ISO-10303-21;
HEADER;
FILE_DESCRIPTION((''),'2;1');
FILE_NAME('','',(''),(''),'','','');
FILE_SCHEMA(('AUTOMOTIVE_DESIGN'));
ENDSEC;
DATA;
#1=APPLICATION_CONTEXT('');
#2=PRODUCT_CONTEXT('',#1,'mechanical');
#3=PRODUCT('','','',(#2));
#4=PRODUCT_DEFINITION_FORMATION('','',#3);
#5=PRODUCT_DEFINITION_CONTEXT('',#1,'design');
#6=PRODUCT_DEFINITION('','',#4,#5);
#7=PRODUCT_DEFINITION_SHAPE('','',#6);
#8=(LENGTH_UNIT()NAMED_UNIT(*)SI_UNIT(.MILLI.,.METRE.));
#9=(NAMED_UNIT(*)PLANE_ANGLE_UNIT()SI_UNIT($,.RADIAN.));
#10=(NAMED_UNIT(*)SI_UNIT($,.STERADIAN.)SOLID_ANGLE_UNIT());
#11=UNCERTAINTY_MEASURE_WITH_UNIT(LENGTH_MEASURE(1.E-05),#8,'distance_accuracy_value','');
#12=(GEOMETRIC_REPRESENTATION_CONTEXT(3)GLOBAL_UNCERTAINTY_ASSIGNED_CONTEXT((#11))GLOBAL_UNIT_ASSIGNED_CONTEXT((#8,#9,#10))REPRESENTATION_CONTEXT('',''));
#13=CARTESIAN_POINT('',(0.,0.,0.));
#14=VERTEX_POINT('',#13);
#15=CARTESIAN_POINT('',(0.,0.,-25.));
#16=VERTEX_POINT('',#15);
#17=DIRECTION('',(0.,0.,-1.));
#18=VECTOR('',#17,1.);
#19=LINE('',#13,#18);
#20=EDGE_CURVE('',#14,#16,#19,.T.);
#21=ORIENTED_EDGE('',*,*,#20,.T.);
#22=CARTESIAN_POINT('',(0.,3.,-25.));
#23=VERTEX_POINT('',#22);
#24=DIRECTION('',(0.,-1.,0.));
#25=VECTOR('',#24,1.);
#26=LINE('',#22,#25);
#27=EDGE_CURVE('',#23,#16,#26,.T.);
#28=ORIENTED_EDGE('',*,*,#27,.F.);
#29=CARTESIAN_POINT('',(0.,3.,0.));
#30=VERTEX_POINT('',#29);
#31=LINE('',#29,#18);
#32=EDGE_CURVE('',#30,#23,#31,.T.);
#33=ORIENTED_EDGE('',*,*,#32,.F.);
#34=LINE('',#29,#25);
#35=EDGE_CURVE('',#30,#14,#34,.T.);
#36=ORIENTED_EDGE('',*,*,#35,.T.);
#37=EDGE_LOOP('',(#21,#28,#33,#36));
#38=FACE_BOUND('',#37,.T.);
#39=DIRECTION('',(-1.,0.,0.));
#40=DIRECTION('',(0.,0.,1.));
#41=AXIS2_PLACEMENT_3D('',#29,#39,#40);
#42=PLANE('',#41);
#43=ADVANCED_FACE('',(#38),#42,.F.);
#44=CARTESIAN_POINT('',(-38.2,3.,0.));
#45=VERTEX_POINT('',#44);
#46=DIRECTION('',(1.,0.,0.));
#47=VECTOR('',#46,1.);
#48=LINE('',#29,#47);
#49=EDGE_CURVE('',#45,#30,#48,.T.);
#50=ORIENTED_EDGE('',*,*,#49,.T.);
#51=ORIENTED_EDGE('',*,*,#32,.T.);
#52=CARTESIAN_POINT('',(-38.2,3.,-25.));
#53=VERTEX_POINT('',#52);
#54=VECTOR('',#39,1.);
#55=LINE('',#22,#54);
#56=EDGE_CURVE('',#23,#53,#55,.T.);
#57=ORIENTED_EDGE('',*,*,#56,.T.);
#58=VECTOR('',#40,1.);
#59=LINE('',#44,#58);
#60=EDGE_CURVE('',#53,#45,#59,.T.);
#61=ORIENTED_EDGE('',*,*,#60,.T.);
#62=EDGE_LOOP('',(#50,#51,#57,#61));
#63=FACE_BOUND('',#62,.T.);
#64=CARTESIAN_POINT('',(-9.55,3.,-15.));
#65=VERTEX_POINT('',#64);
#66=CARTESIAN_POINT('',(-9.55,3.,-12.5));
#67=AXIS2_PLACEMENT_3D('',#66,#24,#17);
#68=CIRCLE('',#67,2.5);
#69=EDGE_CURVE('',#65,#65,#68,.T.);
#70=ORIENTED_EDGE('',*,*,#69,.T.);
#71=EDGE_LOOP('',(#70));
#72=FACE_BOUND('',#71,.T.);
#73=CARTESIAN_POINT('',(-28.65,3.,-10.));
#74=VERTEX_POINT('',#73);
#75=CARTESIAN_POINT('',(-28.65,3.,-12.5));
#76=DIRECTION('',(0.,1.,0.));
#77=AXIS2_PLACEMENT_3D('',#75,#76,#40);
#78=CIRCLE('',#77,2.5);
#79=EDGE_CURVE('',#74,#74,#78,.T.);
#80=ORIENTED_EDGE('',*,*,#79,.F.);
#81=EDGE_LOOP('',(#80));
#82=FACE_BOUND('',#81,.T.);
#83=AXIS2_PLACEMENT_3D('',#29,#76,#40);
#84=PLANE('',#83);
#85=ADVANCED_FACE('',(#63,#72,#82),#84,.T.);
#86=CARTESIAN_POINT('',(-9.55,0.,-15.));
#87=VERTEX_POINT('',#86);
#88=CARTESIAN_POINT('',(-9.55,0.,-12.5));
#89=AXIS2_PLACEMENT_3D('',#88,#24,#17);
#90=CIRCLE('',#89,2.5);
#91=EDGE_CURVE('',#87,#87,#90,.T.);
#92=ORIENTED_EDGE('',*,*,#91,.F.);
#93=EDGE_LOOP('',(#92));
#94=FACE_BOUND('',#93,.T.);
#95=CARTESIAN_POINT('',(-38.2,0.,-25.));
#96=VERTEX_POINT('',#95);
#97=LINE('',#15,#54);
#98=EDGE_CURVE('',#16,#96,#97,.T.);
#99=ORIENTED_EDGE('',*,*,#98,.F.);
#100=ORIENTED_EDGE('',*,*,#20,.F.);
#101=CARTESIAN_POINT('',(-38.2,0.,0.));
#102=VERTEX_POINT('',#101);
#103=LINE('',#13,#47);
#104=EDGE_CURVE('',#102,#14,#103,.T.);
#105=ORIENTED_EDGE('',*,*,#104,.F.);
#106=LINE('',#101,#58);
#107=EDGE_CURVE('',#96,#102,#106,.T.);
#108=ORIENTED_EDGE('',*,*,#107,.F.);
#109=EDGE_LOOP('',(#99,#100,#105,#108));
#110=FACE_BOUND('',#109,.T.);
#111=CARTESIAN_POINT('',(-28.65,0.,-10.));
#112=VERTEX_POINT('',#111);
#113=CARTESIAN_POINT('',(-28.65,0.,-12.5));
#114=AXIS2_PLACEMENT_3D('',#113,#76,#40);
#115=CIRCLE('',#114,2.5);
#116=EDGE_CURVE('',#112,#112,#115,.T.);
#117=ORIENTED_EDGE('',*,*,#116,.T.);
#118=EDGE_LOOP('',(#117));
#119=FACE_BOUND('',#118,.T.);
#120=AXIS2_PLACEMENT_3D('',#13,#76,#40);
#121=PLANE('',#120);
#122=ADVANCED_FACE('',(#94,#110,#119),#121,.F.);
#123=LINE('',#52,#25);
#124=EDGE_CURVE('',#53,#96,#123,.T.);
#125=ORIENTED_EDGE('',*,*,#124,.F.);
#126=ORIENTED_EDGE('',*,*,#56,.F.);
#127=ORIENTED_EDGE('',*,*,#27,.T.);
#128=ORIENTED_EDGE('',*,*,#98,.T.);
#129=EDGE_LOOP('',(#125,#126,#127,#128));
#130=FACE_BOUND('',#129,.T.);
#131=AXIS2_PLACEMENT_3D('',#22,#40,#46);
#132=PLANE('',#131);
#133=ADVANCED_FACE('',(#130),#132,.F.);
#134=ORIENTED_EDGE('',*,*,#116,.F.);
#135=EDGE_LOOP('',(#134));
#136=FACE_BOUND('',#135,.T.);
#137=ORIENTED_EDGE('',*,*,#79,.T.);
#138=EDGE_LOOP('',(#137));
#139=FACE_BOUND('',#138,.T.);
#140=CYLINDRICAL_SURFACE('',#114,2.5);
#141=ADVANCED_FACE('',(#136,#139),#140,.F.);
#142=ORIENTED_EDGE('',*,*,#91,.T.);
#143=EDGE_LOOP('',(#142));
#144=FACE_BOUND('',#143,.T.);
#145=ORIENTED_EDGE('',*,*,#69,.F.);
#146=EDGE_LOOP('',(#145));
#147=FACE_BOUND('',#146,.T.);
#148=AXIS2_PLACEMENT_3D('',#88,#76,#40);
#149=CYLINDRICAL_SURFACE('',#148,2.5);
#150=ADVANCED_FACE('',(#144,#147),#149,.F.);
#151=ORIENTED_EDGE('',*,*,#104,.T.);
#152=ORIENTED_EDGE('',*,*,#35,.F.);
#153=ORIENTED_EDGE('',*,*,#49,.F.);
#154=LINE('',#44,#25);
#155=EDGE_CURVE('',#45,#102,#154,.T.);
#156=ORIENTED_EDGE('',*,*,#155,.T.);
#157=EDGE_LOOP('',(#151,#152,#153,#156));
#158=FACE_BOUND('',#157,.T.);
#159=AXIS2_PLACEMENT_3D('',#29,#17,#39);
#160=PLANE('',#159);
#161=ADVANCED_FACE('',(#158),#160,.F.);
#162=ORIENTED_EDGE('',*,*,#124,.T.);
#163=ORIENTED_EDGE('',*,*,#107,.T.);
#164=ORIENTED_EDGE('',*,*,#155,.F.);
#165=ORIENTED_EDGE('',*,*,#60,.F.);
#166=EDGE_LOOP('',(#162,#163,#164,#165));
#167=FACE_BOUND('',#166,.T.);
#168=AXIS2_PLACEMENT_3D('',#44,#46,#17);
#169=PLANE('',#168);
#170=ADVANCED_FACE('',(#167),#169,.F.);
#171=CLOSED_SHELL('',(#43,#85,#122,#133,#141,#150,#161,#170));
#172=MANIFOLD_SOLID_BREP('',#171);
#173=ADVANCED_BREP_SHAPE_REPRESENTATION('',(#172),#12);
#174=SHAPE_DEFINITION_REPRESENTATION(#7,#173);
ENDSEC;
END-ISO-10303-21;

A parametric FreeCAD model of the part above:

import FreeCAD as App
import Part
import Sketcher

V = App.Vector
Q = App.Units.Quantity


def add_polygon(sketch, points):
    """Adds a closed chain of lines whose ends are joined by coincident constraints."""
    first, n = sketch.GeometryCount, len(points)
    for a, b in zip(points, points[1:] + points[:1]):
        sketch.addGeometry(Part.LineSegment(App.Vector(*a, 0), App.Vector(*b, 0)), False)
    for i in range(n):
        sketch.addConstraint(Sketcher.Constraint("Coincident", first + i, 2, first + (i + 1) % n, 1))

doc = App.newDocument("Part")
body = doc.addObject("PartDesign::Body", "Body")

# Sketch on XZ plane
sketch1 = doc.addObject("Sketcher::SketchObject", "Sketch")
body.addObject(sketch1)
sketch1.AttachmentSupport = (doc.XZ_Plane, [""])
sketch1.MapMode = "FlatFace"
add_polygon(sketch1, [(-38, -25), (-38, 0), (0, 0), (0, -25)])  # lines 0-3
sketch1.addConstraint(Sketcher.Constraint("Vertical", 0))
sketch1.addConstraint(Sketcher.Constraint("Horizontal", 1))
sketch1.addConstraint(Sketcher.Constraint("Vertical", 2))
sketch1.addConstraint(Sketcher.Constraint("Horizontal", 3))
sketch1.addConstraint(Sketcher.Constraint("Coincident", 1, 2, -1, 1))
sketch1.addConstraint(Sketcher.Constraint("DistanceY", 0, 1, 0, 2, Q("25 mm")))
sketch1.addConstraint(Sketcher.Constraint("DistanceX", 1, 1, 1, 2, Q("38.2 mm")))
pad1 = doc.addObject("PartDesign::Pad", "Pad")
body.addObject(pad1)
pad1.Profile = sketch1
pad1.Length = 3
pad1.Reversed = True

# Sketch on XZ plane
sketch2 = doc.addObject("Sketcher::SketchObject", "Sketch001")
body.addObject(sketch2)
sketch2.AttachmentSupport = (doc.XZ_Plane, [""])
sketch2.MapMode = "FlatFace"
sketch2.AttachmentOffset = App.Placement(V(0, 0, -3), App.Rotation())
sketch2.addGeometry(Part.Circle(V(-28.6, -12.5, 0), V(0, 0, 1), 2.5), False)
sketch2.addGeometry(Part.Circle(V(-9.6, -12.5, 0), V(0, 0, 1), 2.5), False)
sketch2.addConstraint(Sketcher.Constraint("Equal", 0, 1))
sketch2.addConstraint(Sketcher.Constraint("Horizontal", 0, 3, 1, 3))
sketch2.addConstraint(Sketcher.Constraint("Diameter", 0, Q("5 mm")))
sketch2.addConstraint(Sketcher.Constraint("DistanceY", 0, 3, -1, 1, Q("12.5 mm")))
sketch2.addConstraint(Sketcher.Constraint("DistanceX", 0, 3, 1, 3, Q("19.1 mm")))
sketch2.addConstraint(Sketcher.Constraint("DistanceX", 0, 3, -1, 1, Q("28.65 mm")))
pocket1 = doc.addObject("PartDesign::Pocket", "Pocket")
body.addObject(pocket1)
pocket1.Profile = sketch2
pocket1.Length = 3
pocket1.Reversed = True

doc.recompute()
